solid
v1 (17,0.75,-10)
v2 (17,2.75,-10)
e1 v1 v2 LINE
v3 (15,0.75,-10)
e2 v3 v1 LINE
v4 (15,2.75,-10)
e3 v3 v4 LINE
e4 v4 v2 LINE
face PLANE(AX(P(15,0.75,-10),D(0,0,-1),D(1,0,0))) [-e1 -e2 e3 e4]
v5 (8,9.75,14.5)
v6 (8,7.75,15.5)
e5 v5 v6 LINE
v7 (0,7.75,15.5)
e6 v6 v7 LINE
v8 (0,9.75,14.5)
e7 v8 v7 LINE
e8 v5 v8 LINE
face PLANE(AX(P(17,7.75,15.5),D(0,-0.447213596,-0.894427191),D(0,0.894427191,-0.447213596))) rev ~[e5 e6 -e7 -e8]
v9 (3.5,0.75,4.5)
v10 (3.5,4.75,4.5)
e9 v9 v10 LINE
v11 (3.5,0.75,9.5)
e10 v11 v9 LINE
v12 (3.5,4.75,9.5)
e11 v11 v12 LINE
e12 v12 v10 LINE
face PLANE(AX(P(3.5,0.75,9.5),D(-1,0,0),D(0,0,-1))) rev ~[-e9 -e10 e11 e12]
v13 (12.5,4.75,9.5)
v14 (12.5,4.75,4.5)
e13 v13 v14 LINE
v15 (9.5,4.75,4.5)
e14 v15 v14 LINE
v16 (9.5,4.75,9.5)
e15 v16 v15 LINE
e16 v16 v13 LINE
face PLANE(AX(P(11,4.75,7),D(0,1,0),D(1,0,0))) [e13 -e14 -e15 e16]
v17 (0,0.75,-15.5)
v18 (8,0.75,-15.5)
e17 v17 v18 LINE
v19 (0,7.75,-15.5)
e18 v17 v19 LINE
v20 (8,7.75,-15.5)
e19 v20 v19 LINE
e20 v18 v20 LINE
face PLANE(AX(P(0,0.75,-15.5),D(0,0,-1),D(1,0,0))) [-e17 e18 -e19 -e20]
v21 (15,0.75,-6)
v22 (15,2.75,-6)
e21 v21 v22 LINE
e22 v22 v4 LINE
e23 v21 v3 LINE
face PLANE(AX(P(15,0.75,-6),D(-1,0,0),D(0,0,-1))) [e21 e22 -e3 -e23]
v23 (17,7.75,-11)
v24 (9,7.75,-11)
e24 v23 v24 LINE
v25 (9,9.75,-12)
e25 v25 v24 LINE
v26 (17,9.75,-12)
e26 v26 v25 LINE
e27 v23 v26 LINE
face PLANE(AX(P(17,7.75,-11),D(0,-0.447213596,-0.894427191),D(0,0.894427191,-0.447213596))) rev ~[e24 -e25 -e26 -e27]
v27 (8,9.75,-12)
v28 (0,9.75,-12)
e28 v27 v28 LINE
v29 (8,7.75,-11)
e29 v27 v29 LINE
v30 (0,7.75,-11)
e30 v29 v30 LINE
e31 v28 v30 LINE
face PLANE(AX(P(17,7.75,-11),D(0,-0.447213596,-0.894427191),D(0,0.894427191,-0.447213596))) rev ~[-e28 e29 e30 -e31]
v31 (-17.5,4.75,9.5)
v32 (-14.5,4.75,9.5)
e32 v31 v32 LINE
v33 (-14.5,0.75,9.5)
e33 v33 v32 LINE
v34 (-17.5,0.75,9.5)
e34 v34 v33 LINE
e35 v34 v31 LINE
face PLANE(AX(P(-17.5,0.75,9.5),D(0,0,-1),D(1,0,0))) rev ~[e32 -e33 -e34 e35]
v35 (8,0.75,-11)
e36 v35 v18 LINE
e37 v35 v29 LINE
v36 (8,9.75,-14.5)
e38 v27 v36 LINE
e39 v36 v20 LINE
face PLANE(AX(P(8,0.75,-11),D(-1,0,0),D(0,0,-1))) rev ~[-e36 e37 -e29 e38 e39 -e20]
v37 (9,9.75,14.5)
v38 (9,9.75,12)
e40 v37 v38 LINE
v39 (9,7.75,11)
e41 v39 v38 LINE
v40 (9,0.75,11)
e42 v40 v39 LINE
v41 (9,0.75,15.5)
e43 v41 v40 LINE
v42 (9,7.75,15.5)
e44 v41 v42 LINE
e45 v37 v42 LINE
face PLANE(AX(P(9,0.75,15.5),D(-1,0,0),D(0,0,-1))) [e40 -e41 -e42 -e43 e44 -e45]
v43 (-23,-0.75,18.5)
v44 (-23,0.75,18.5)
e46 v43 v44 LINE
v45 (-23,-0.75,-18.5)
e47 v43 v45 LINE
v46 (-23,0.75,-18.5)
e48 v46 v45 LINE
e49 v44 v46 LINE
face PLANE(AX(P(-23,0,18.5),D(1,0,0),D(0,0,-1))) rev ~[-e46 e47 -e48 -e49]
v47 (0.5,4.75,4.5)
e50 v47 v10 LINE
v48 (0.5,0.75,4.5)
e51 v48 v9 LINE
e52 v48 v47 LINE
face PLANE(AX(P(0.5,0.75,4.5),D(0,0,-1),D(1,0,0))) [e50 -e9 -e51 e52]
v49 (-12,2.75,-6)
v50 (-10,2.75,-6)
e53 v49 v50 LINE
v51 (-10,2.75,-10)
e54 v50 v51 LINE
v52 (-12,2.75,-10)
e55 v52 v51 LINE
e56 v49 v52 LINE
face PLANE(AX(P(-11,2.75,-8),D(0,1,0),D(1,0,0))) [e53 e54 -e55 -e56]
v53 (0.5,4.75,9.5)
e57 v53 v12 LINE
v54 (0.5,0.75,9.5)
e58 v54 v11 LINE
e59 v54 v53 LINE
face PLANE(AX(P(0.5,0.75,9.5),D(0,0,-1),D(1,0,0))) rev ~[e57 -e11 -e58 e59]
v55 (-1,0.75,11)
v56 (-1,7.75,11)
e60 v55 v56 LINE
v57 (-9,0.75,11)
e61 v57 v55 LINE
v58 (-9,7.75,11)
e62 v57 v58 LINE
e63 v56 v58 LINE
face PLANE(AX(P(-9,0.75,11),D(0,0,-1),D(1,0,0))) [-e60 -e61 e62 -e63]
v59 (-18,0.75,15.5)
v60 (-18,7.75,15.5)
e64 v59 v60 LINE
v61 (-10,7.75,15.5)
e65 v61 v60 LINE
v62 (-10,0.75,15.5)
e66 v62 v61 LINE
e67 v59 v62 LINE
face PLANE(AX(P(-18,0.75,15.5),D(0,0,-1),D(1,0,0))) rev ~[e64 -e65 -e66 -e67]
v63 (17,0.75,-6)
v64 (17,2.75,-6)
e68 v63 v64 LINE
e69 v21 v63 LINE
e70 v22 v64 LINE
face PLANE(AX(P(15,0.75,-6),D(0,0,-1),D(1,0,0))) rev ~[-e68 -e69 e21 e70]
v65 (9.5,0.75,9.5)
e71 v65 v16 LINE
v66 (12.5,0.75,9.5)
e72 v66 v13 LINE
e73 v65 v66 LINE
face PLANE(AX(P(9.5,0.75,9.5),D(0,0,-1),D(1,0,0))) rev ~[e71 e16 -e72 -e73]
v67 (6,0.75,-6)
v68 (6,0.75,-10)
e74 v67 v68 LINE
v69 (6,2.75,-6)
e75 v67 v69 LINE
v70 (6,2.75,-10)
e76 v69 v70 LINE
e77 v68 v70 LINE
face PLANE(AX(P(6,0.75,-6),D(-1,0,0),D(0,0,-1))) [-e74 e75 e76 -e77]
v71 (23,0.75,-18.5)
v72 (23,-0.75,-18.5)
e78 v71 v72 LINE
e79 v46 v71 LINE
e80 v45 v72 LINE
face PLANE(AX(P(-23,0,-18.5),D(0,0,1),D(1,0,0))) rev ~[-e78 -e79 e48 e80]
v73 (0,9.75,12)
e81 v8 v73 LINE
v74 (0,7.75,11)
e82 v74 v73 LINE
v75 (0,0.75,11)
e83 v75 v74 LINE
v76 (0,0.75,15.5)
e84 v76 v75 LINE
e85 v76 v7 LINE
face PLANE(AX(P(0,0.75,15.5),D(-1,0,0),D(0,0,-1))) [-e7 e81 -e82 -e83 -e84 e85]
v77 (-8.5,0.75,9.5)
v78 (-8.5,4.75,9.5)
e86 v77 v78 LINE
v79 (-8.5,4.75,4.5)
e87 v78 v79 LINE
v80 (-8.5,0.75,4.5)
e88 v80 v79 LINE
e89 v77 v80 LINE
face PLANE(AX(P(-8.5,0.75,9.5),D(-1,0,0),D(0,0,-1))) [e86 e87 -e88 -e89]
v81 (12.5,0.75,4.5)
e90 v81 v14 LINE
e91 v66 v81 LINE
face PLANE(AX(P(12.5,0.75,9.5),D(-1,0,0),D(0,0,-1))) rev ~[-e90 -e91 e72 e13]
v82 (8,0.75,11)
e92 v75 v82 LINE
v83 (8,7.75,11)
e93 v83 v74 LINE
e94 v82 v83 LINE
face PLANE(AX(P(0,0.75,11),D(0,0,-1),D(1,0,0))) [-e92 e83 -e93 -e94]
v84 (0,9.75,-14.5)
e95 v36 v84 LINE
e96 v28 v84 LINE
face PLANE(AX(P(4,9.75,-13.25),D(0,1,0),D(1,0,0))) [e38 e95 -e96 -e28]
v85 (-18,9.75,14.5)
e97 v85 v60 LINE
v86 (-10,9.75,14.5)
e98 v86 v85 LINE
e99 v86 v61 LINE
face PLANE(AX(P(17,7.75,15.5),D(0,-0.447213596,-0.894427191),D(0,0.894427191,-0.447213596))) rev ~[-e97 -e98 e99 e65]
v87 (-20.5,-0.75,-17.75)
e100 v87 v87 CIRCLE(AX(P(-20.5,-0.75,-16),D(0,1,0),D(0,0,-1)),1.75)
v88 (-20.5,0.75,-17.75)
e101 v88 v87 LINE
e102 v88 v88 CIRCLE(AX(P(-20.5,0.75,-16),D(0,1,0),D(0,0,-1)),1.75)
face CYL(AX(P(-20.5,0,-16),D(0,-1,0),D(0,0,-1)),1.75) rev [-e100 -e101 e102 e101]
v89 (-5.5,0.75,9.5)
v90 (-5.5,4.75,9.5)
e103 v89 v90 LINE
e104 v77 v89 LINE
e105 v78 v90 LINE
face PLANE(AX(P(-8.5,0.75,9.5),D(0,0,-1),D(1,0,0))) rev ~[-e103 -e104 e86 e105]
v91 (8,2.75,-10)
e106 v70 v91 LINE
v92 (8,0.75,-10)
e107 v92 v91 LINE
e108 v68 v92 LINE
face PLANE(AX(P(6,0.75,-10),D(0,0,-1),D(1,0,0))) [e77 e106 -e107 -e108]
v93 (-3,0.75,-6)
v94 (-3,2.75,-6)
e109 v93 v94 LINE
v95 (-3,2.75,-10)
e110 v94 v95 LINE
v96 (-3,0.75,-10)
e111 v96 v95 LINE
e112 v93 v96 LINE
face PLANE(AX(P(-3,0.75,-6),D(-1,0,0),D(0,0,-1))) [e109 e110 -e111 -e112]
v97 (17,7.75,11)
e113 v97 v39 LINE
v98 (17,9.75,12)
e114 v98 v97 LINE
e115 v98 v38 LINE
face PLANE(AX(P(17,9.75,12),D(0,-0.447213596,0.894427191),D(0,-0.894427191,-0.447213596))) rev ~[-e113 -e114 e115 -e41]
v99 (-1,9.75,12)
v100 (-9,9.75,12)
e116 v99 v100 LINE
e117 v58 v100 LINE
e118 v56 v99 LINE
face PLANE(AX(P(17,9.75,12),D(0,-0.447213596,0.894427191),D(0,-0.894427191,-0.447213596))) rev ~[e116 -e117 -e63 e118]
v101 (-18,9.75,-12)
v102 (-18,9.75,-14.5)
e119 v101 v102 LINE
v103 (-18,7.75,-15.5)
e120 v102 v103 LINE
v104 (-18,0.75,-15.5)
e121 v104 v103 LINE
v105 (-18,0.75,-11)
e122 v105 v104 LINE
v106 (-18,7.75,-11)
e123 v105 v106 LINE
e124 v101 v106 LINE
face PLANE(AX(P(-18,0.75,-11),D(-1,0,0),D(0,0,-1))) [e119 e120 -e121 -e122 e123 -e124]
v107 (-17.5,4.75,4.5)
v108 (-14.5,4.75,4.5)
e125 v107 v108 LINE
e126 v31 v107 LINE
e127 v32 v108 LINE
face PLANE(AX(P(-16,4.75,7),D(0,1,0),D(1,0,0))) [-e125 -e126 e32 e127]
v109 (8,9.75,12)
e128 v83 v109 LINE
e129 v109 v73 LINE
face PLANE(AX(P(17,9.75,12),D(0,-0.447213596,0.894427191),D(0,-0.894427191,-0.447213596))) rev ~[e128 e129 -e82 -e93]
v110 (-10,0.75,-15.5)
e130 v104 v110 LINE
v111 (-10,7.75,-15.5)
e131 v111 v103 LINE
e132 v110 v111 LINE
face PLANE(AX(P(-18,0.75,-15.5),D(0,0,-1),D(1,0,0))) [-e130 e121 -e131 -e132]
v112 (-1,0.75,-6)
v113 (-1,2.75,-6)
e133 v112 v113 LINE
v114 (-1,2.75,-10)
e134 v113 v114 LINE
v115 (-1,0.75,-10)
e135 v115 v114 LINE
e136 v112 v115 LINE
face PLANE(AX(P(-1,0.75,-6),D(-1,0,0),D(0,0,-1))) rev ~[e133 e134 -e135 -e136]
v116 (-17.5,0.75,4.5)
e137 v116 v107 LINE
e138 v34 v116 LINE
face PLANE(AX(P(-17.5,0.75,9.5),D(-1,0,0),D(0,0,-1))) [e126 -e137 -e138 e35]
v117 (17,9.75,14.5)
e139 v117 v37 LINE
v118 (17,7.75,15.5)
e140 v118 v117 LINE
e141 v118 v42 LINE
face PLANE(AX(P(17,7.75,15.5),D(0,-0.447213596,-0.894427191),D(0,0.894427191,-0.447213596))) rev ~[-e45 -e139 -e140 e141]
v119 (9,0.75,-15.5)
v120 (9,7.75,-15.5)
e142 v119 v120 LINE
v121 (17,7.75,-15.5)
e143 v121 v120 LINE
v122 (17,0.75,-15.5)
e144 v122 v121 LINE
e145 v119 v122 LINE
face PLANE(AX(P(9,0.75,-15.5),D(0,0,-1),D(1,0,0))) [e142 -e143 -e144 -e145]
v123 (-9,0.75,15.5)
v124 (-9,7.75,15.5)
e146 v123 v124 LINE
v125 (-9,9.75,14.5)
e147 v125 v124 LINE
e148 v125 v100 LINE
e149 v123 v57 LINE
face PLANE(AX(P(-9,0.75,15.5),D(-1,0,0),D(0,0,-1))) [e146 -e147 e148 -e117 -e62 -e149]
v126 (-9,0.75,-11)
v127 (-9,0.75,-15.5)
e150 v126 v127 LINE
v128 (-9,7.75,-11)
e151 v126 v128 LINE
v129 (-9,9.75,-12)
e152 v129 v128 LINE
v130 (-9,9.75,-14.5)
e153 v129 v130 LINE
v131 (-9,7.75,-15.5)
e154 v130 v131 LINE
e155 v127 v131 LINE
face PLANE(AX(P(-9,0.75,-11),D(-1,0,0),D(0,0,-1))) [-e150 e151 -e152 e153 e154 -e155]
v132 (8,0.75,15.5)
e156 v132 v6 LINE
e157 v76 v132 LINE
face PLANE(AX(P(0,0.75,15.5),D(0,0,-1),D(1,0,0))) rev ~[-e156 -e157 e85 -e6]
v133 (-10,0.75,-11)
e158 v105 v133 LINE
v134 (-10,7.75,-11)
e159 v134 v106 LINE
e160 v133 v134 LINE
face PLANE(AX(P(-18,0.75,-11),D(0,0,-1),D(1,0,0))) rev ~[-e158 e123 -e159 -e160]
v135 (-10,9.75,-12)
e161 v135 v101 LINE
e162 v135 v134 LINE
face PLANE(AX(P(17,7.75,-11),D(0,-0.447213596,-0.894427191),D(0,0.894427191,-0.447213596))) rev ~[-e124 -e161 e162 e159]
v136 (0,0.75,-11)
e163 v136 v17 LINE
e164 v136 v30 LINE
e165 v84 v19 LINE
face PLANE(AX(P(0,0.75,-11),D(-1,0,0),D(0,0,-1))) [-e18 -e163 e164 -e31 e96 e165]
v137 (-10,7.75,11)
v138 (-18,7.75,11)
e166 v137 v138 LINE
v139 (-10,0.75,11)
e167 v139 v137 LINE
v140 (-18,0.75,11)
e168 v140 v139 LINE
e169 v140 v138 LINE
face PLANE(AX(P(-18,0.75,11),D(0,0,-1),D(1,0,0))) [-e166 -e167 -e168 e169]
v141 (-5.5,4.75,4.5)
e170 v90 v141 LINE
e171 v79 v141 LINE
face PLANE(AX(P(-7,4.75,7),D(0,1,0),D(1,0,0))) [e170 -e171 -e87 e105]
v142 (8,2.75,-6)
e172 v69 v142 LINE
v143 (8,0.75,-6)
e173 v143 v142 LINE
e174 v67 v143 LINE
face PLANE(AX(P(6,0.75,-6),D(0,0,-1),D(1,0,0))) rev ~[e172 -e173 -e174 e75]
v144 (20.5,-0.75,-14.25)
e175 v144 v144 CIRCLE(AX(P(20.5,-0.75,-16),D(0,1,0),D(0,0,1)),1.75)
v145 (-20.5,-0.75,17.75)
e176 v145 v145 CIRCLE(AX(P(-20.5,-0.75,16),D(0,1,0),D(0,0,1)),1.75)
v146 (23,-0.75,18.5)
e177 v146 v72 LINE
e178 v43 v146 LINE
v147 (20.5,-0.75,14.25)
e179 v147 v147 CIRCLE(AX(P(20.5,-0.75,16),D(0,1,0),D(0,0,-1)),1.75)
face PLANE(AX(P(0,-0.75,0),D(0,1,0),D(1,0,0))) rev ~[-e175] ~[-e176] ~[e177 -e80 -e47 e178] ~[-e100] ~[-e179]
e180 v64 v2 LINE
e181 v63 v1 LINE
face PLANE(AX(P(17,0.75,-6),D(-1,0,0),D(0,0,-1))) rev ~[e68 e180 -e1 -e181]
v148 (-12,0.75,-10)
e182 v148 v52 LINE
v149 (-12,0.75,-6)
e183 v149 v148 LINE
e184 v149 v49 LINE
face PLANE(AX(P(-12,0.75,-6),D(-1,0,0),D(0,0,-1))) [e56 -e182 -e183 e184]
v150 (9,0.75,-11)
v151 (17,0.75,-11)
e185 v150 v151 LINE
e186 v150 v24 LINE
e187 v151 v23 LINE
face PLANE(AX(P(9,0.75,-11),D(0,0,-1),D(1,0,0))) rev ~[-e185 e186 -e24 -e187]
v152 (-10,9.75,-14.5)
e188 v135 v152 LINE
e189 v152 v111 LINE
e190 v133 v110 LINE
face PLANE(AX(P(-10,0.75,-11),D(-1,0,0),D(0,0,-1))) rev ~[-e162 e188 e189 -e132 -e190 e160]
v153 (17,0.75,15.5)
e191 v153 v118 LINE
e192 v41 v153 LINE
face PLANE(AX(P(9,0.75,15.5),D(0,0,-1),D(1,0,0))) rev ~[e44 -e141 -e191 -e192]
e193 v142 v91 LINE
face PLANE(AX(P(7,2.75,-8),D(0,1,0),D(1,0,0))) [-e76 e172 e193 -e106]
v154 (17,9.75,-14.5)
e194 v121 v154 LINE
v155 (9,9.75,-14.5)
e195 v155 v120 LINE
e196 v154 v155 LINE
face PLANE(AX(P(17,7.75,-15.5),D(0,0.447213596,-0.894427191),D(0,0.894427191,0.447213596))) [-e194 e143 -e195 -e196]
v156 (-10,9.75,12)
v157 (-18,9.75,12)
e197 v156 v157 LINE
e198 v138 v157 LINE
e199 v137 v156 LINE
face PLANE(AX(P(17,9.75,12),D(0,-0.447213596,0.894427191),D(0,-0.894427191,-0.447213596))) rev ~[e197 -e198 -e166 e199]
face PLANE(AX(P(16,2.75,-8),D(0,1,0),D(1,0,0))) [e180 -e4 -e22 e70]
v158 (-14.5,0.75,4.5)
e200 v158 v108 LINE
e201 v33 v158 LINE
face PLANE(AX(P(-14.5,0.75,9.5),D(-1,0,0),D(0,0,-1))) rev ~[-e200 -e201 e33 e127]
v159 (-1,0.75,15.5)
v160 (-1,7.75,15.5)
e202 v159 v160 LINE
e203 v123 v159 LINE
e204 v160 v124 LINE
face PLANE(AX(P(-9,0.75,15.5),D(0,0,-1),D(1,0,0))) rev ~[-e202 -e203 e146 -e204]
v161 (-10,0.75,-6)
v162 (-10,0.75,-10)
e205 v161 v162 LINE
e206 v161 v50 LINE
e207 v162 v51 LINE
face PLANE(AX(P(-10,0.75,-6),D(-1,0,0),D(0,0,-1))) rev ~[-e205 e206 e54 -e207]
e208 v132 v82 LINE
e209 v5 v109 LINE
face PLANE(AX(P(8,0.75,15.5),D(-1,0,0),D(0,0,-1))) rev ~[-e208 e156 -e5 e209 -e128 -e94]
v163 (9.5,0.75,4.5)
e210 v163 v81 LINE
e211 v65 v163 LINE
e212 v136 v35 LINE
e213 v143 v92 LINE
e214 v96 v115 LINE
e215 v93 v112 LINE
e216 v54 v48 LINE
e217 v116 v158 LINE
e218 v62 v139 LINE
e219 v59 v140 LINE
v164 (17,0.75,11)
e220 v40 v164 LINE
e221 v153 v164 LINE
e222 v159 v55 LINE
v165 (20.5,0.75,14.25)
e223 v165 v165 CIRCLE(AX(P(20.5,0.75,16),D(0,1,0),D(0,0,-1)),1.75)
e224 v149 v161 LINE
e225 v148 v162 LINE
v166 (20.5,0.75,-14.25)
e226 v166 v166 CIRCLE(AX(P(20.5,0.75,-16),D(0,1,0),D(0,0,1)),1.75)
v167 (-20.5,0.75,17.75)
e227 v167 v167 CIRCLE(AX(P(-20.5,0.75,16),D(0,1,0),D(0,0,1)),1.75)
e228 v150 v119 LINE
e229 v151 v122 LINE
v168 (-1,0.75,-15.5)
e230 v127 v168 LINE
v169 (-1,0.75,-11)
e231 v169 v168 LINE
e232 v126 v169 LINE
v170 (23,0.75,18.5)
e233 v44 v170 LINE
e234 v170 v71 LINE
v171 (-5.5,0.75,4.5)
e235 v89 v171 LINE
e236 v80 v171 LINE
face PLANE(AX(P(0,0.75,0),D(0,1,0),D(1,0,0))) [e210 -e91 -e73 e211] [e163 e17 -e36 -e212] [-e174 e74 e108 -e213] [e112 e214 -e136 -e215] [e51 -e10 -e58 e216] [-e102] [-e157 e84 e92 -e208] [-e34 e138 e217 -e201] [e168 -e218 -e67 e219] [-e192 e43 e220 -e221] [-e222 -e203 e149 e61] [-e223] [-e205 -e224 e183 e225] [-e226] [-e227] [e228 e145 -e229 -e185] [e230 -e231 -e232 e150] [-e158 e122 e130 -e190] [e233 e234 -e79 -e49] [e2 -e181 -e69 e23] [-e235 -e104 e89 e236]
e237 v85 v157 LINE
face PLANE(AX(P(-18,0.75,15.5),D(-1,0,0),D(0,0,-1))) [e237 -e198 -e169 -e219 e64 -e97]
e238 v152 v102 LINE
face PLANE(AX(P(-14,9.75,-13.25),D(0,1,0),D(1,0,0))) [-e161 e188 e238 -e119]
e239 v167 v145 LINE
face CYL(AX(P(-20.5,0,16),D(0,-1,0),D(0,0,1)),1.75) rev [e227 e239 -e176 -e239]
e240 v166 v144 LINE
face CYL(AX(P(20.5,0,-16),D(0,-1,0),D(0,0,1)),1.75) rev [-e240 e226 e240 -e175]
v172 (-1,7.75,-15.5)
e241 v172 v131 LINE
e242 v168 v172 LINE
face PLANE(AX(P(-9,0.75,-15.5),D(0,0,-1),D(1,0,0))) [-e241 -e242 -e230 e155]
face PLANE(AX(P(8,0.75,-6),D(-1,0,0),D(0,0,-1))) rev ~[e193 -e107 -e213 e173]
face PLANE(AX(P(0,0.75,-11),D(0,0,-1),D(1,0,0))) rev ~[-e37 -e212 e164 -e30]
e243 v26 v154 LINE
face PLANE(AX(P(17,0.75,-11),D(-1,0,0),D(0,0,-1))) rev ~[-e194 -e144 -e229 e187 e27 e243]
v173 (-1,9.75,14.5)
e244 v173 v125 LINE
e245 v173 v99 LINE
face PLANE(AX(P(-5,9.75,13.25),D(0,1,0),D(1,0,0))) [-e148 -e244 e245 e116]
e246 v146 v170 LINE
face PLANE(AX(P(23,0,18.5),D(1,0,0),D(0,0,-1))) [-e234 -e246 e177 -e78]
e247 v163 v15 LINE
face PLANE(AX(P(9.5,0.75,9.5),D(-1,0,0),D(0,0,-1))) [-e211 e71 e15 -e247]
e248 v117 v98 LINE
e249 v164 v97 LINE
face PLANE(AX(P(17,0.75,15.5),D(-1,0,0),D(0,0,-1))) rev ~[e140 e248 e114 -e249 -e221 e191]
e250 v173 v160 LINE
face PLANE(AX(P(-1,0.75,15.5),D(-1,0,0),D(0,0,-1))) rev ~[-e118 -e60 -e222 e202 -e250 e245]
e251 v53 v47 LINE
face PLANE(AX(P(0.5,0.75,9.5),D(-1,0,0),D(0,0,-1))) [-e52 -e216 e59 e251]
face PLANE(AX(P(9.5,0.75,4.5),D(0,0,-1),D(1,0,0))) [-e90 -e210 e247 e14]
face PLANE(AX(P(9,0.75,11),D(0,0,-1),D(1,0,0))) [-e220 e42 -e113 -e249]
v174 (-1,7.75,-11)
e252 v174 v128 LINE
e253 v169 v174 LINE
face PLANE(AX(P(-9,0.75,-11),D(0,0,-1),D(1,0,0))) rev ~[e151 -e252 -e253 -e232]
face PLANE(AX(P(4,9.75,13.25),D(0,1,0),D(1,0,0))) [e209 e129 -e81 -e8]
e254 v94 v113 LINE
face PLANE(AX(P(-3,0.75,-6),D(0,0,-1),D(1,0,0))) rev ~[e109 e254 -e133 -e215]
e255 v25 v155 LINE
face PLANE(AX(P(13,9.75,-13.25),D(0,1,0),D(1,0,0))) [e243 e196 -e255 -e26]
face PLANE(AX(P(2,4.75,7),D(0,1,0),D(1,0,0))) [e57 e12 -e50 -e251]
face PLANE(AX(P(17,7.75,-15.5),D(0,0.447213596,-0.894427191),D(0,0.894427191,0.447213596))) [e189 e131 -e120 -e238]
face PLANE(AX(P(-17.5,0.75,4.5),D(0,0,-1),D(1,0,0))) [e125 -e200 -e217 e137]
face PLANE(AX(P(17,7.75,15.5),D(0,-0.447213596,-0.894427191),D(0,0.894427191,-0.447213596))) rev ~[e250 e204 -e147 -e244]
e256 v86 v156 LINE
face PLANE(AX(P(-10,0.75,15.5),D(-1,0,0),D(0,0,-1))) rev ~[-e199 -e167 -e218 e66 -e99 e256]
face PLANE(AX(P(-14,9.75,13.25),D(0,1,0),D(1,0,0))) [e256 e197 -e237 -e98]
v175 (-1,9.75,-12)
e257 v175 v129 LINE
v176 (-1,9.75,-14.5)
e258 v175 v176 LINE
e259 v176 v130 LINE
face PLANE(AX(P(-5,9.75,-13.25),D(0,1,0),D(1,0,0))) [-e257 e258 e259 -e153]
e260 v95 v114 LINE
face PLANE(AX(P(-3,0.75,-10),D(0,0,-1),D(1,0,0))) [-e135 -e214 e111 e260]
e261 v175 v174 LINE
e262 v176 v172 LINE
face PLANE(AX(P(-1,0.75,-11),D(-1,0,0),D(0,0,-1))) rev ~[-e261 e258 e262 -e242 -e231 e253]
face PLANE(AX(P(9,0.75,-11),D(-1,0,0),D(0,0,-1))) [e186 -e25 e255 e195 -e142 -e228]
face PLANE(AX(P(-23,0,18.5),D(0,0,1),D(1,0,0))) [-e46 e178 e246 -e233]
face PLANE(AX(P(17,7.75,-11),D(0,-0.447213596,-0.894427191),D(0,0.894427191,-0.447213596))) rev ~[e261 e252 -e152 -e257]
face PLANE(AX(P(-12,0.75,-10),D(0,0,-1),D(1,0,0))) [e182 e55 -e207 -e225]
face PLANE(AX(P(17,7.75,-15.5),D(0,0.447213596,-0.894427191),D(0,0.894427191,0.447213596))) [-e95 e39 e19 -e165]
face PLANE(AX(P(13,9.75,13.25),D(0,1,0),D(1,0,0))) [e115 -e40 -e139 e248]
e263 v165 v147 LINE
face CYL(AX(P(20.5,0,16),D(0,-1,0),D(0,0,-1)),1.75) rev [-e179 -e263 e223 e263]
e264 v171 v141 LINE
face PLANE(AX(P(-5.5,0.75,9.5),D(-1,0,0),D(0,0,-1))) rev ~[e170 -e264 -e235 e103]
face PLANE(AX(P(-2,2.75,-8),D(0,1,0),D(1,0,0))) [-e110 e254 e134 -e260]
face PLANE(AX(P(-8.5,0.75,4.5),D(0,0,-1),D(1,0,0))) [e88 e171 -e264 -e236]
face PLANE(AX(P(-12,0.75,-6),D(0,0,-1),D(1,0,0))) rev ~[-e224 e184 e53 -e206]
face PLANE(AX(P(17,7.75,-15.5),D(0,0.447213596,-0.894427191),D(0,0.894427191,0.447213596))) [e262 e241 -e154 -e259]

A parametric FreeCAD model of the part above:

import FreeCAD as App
import Part
import Sketcher

V = App.Vector

doc = App.newDocument("Part")
params = doc.addObject("Spreadsheet::Sheet", "Params")
for row, (alias, value) in enumerate([
    ("sketch1_diameter", "3.5 mm"),
    ("sketch1_width", "46 mm"),
    ("sketch1_height", "37 mm"),
    ("pad1_length", "1.5 mm"),
    ("sketch2_width", "8 mm"),
    ("sketch2_height", "4.5 mm"),
    ("pad2_length", "9 mm"),
    ("sketch3_width", "2 mm"),
    ("sketch3_height", "1 mm"),
    ("pocket1_length", "124 mm"),
    ("sketch4_width", "2 mm"),
    ("sketch4_height", "4 mm"),
    ("pad3_length", "2 mm"),
    ("sketch5_width", "3 mm"),
    ("sketch5_height", "5 mm"),
    ("pad4_length", "4 mm"),
], start=1):
    params.set(f"A{row}", alias)
    params.set(f"B{row}", "=" + value)
    params.setAlias(f"B{row}", alias)

body = doc.addObject("PartDesign::Body", "Body")

# Sketch on XZ plane
sketch1 = body.newObject("Sketcher::SketchObject", "Sketch")
sketch1.AttachmentSupport = (doc.getObject("XZ_Plane"), [""])
sketch1.MapMode = "FlatFace"
sketch1.addGeometry(Part.LineSegment(V(-23, -18.5, 0), V(-23, 18.5, 0)), False)
sketch1.addGeometry(Part.LineSegment(V(-23, 18.5, 0), V(23, 18.5, 0)), False)
sketch1.addGeometry(Part.LineSegment(V(23, 18.5, 0), V(23, -18.5, 0)), False)
sketch1.addGeometry(Part.LineSegment(V(23, -18.5, 0), V(-23, -18.5, 0)), False)
sketch1.addGeometry(Part.Circle(V(-20.5, 16, 0), V(0, 0, 1), 1.75), False)
sketch1.addGeometry(Part.Circle(V(20.5, 16, 0), V(0, 0, 1), 1.75), False)
sketch1.addGeometry(Part.Circle(V(-20.5, -16, 0), V(0, 0, 1), 1.75), False)
sketch1.addGeometry(Part.Circle(V(20.5, -16, 0), V(0, 0, 1), 1.75), False)
sketch1.addConstraint(Sketcher.Constraint("Coincident", 0, 2, 1, 1))
sketch1.addConstraint(Sketcher.Constraint("Coincident", 1, 2, 2, 1))
sketch1.addConstraint(Sketcher.Constraint("Coincident", 2, 2, 3, 1))
sketch1.addConstraint(Sketcher.Constraint("Coincident", 3, 2, 0, 1))
sketch1.addConstraint(Sketcher.Constraint("Vertical", 0))
sketch1.addConstraint(Sketcher.Constraint("Horizontal", 1))
sketch1.addConstraint(Sketcher.Constraint("Vertical", 2))
sketch1.addConstraint(Sketcher.Constraint("Horizontal", 3))
sketch1.addConstraint(Sketcher.Constraint("Equal", 4, 5))
sketch1.addConstraint(Sketcher.Constraint("Equal", 5, 6))
sketch1.addConstraint(Sketcher.Constraint("Equal", 6, 7))
sketch1.addConstraint(Sketcher.Constraint("Symmetric", 5, 3, 6, 3, -1, 1))
sketch1.addConstraint(Sketcher.Constraint("Symmetric", 4, 3, 7, 3, -1, 1))
sketch1.addConstraint(Sketcher.Constraint("Symmetric", 0, 2, 2, 2, -1, 1))
sketch1.addConstraint(Sketcher.Constraint("Symmetric", 4, 3, 5, 3, -2))
sketch1.addConstraint(Sketcher.Constraint("Diameter", 4, 3.5))
sketch1.addConstraint(Sketcher.Constraint("DistanceX", 1, 1, 1, 2, 46.0))
sketch1.addConstraint(Sketcher.Constraint("DistanceY", 0, 1, 0, 2, 37.0))
sketch1.addConstraint(Sketcher.Constraint("DistanceY", -1, 1, 4, 3, 16.0))
sketch1.addConstraint(Sketcher.Constraint("DistanceX", 4, 3, 5, 3, 41.0))
sketch1.setExpression("Constraints[15]", "Params.sketch1_diameter")
sketch1.setExpression("Constraints[16]", "Params.sketch1_width")
sketch1.setExpression("Constraints[17]", "Params.sketch1_height")
pad1 = body.newObject("PartDesign::Pad", "Pad")
pad1.Profile = sketch1
pad1.setExpression("Length", "Params.pad1_length")
pad1.Midplane = True

# Sketch on XZ plane
sketch2 = body.newObject("Sketcher::SketchObject", "Sketch001")
sketch2.AttachmentSupport = (doc.getObject("XZ_Plane"), [""])
sketch2.MapMode = "FlatFace"
sketch2.AttachmentOffset = App.Placement(V(0, 0, -0.75), App.Rotation())
sketch2.addGeometry(Part.LineSegment(V(9, -15.5, 0), V(9, -11, 0)), False)
sketch2.addGeometry(Part.LineSegment(V(9, -11, 0), V(17, -11, 0)), False)
sketch2.addGeometry(Part.LineSegment(V(17, -11, 0), V(17, -15.5, 0)), False)
sketch2.addGeometry(Part.LineSegment(V(17, -15.5, 0), V(9, -15.5, 0)), False)
sketch2.addGeometry(Part.LineSegment(V(0, -15.5, 0), V(0, -11, 0)), False)
sketch2.addGeometry(Part.LineSegment(V(0, -11, 0), V(8, -11, 0)), False)
sketch2.addGeometry(Part.LineSegment(V(8, -11, 0), V(8, -15.5, 0)), False)
sketch2.addGeometry(Part.LineSegment(V(8, -15.5, 0), V(0, -15.5, 0)), False)
sketch2.addGeometry(Part.LineSegment(V(-9, -15.5, 0), V(-9, -11, 0)), False)
sketch2.addGeometry(Part.LineSegment(V(-9, -11, 0), V(-1, -11, 0)), False)
sketch2.addGeometry(Part.LineSegment(V(-1, -11, 0), V(-1, -15.5, 0)), False)
sketch2.addGeometry(Part.LineSegment(V(-1, -15.5, 0), V(-9, -15.5, 0)), False)
sketch2.addGeometry(Part.LineSegment(V(-18, -15.5, 0), V(-18, -11, 0)), False)
sketch2.addGeometry(Part.LineSegment(V(-18, -11, 0), V(-10, -11, 0)), False)
sketch2.addGeometry(Part.LineSegment(V(-10, -11, 0), V(-10, -15.5, 0)), False)
sketch2.addGeometry(Part.LineSegment(V(-10, -15.5, 0), V(-18, -15.5, 0)), False)
sketch2.addGeometry(Part.LineSegment(V(-18, 11, 0), V(-18, 15.5, 0)), False)
sketch2.addGeometry(Part.LineSegment(V(-18, 15.5, 0), V(-10, 15.5, 0)), False)
sketch2.addGeometry(Part.LineSegment(V(-10, 15.5, 0), V(-10, 11, 0)), False)
sketch2.addGeometry(Part.LineSegment(V(-10, 11, 0), V(-18, 11, 0)), False)
sketch2.addGeometry(Part.LineSegment(V(-9, 11, 0), V(-9, 15.5, 0)), False)
sketch2.addGeometry(Part.LineSegment(V(-9, 15.5, 0), V(-1, 15.5, 0)), False)
sketch2.addGeometry(Part.LineSegment(V(-1, 15.5, 0), V(-1, 11, 0)), False)
sketch2.addGeometry(Part.LineSegment(V(-1, 11, 0), V(-9, 11, 0)), False)
sketch2.addGeometry(Part.LineSegment(V(0, 11, 0), V(0, 15.5, 0)), False)
sketch2.addGeometry(Part.LineSegment(V(0, 15.5, 0), V(8, 15.5, 0)), False)
sketch2.addGeometry(Part.LineSegment(V(8, 15.5, 0), V(8, 11, 0)), False)
sketch2.addGeometry(Part.LineSegment(V(8, 11, 0), V(0, 11, 0)), False)
sketch2.addGeometry(Part.LineSegment(V(9, 11, 0), V(9, 15.5, 0)), False)
sketch2.addGeometry(Part.LineSegment(V(9, 15.5, 0), V(17, 15.5, 0)), False)
sketch2.addGeometry(Part.LineSegment(V(17, 15.5, 0), V(17, 11, 0)), False)
sketch2.addGeometry(Part.LineSegment(V(17, 11, 0), V(9, 11, 0)), False)
sketch2.addConstraint(Sketcher.Constraint("Coincident", 0, 2, 1, 1))
sketch2.addConstraint(Sketcher.Constraint("Coincident", 1, 2, 2, 1))
sketch2.addConstraint(Sketcher.Constraint("Coincident", 2, 2, 3, 1))
sketch2.addConstraint(Sketcher.Constraint("Coincident", 3, 2, 0, 1))
sketch2.addConstraint(Sketcher.Constraint("Coincident", 4, 2, 5, 1))
sketch2.addConstraint(Sketcher.Constraint("Coincident", 5, 2, 6, 1))
sketch2.addConstraint(Sketcher.Constraint("Coincident", 6, 2, 7, 1))
sketch2.addConstraint(Sketcher.Constraint("Coincident", 7, 2, 4, 1))
sketch2.addConstraint(Sketcher.Constraint("Coincident", 8, 2, 9, 1))
sketch2.addConstraint(Sketcher.Constraint("Coincident", 9, 2, 10, 1))
sketch2.addConstraint(Sketcher.Constraint("Coincident", 10, 2, 11, 1))
sketch2.addConstraint(Sketcher.Constraint("Coincident", 11, 2, 8, 1))
sketch2.addConstraint(Sketcher.Constraint("Coincident", 12, 2, 13, 1))
sketch2.addConstraint(Sketcher.Constraint("Coincident", 13, 2, 14, 1))
sketch2.addConstraint(Sketcher.Constraint("Coincident", 14, 2, 15, 1))
sketch2.addConstraint(Sketcher.Constraint("Coincident", 15, 2, 12, 1))
sketch2.addConstraint(Sketcher.Constraint("Coincident", 16, 2, 17, 1))
sketch2.addConstraint(Sketcher.Constraint("Coincident", 17, 2, 18, 1))
sketch2.addConstraint(Sketcher.Constraint("Coincident", 18, 2, 19, 1))
sketch2.addConstraint(Sketcher.Constraint("Coincident", 19, 2, 16, 1))
sketch2.addConstraint(Sketcher.Constraint("Coincident", 20, 2, 21, 1))
sketch2.addConstraint(Sketcher.Constraint("Coincident", 21, 2, 22, 1))
sketch2.addConstraint(Sketcher.Constraint("Coincident", 22, 2, 23, 1))
sketch2.addConstraint(Sketcher.Constraint("Coincident", 23, 2, 20, 1))
sketch2.addConstraint(Sketcher.Constraint("Coincident", 24, 2, 25, 1))
sketch2.addConstraint(Sketcher.Constraint("Coincident", 25, 2, 26, 1))
sketch2.addConstraint(Sketcher.Constraint("Coincident", 26, 2, 27, 1))
sketch2.addConstraint(Sketcher.Constraint("Coincident", 27, 2, 24, 1))
sketch2.addConstraint(Sketcher.Constraint("Coincident", 28, 2, 29, 1))
sketch2.addConstraint(Sketcher.Constraint("Coincident", 29, 2, 30, 1))
sketch2.addConstraint(Sketcher.Constraint("Coincident", 30, 2, 31, 1))
sketch2.addConstraint(Sketcher.Constraint("Coincident", 31, 2, 28, 1))
sketch2.addConstraint(Sketcher.Constraint("Vertical", 0))
sketch2.addConstraint(Sketcher.Constraint("Horizontal", 1))
sketch2.addConstraint(Sketcher.Constraint("Vertical", 2))
sketch2.addConstraint(Sketcher.Constraint("Horizontal", 3))
sketch2.addConstraint(Sketcher.Constraint("Vertical", 4))
sketch2.addConstraint(Sketcher.Constraint("Horizontal", 5))
sketch2.addConstraint(Sketcher.Constraint("Vertical", 6))
sketch2.addConstraint(Sketcher.Constraint("Horizontal", 7))
sketch2.addConstraint(Sketcher.Constraint("Vertical", 8))
sketch2.addConstraint(Sketcher.Constraint("Horizontal", 9))
sketch2.addConstraint(Sketcher.Constraint("Vertical", 10))
sketch2.addConstraint(Sketcher.Constraint("Horizontal", 11))
sketch2.addConstraint(Sketcher.Constraint("Vertical", 12))
sketch2.addConstraint(Sketcher.Constraint("Horizontal", 13))
sketch2.addConstraint(Sketcher.Constraint("Vertical", 14))
sketch2.addConstraint(Sketcher.Constraint("Horizontal", 15))
sketch2.addConstraint(Sketcher.Constraint("Vertical", 16))
sketch2.addConstraint(Sketcher.Constraint("Horizontal", 17))
sketch2.addConstraint(Sketcher.Constraint("Vertical", 18))
sketch2.addConstraint(Sketcher.Constraint("Horizontal", 19))
sketch2.addConstraint(Sketcher.Constraint("Vertical", 20))
sketch2.addConstraint(Sketcher.Constraint("Horizontal", 21))
sketch2.addConstraint(Sketcher.Constraint("Vertical", 22))
sketch2.addConstraint(Sketcher.Constraint("Horizontal", 23))
sketch2.addConstraint(Sketcher.Constraint("Vertical", 24))
sketch2.addConstraint(Sketcher.Constraint("Horizontal", 25))
sketch2.addConstraint(Sketcher.Constraint("Vertical", 26))
sketch2.addConstraint(Sketcher.Constraint("Horizontal", 27))
sketch2.addConstraint(Sketcher.Constraint("Vertical", 28))
sketch2.addConstraint(Sketcher.Constraint("Horizontal", 29))
sketch2.addConstraint(Sketcher.Constraint("Vertical", 30))
sketch2.addConstraint(Sketcher.Constraint("Horizontal", 31))
sketch2.addConstraint(Sketcher.Constraint("Symmetric", 3, 2, 20, 2, -1, 1))
sketch2.addConstraint(Sketcher.Constraint("Symmetric", 7, 2, 24, 2, -1, 1))
sketch2.addConstraint(Sketcher.Constraint("Symmetric", 11, 2, 28, 2, -1, 1))
sketch2.addConstraint(Sketcher.Constraint("Symmetric", 0, 2, 8, 2, -2))
sketch2.addConstraint(Sketcher.Constraint("Symmetric", 15, 2, 16, 2, -1))
sketch2.addConstraint(Sketcher.Constraint("Symmetric", 13, 2, 18, 2, -1))
sketch2.addConstraint(Sketcher.Constraint("Symmetric", 10, 2, 21, 2, -1))
sketch2.addConstraint(Sketcher.Constraint("Symmetric", 5, 2, 26, 2, -1))
sketch2.addConstraint(Sketcher.Constraint("Symmetric", 1, 2, 30, 2, -1))
sketch2.addConstraint(Sketcher.Constraint("PointOnObject", 4, 2, -2))
sketch2.addConstraint(Sketcher.Constraint("Horizontal", 1, 2, 4, 2))
sketch2.addConstraint(Sketcher.Constraint("Horizontal", 3, 2, 6, 2))
sketch2.addConstraint(Sketcher.Constraint("Horizontal", 9, 2, 12, 2))
sketch2.addConstraint(Sketcher.Constraint("Horizontal", 11, 2, 14, 2))
sketch2.addConstraint(Sketcher.Constraint("Horizontal", 19, 2, 22, 2))
sketch2.addConstraint(Sketcher.Constraint("Equal", 3, 5))
sketch2.addConstraint(Sketcher.Constraint("Equal", 7, 9))
sketch2.addConstraint(Sketcher.Constraint("Equal", 11, 13))
sketch2.addConstraint(Sketcher.Constraint("DistanceX", 1, 1, 1, 2, 8.0))
sketch2.addConstraint(Sketcher.Constraint("DistanceY", 0, 1, 0, 2, 4.5))
sketch2.addConstraint(Sketcher.Constraint("DistanceX", -1, 1, 0, 2, 9.0))
sketch2.addConstraint(Sketcher.Constraint("DistanceY", 0, 2, -1, 1, 11.0))
sketch2.addConstraint(Sketcher.Constraint("DistanceX", 12, 2, -1, 1, 18.0))
sketch2.setExpression("Constraints[82]", "Params.sketch2_width")
sketch2.setExpression("Constraints[83]", "Params.sketch2_height")
pad2 = body.newObject("PartDesign::Pad", "Pad001")
pad2.Profile = sketch2
pad2.setExpression("Length", "Params.pad2_length")
pad2.Reversed = True

# Sketch on YZ plane
sketch3 = body.newObject("Sketcher::SketchObject", "Sketch002")
sketch3.AttachmentSupport = (doc.getObject("YZ_Plane"), [""])
sketch3.MapMode = "FlatFace"
sketch3.AttachmentOffset = App.Placement(V(0, 0, 17), App.Rotation())
sketch3.addGeometry(Part.LineSegment(V(9.75, 15.5, 0), V(7.75, 15.5, 0)), False)
sketch3.addGeometry(Part.LineSegment(V(7.75, 15.5, 0), V(9.75, 14.5, 0)), False)
sketch3.addGeometry(Part.LineSegment(V(9.75, 14.5, 0), V(9.75, 15.5, 0)), False)
sketch3.addGeometry(Part.LineSegment(V(9.75, 11, 0), V(9.75, 12, 0)), False)
sketch3.addGeometry(Part.LineSegment(V(9.75, 12, 0), V(7.75, 11, 0)), False)
sketch3.addGeometry(Part.LineSegment(V(7.75, 11, 0), V(9.75, 11, 0)), False)
sketch3.addGeometry(Part.LineSegment(V(9.75, -12, 0), V(9.75, -11, 0)), False)
sketch3.addGeometry(Part.LineSegment(V(9.75, -11, 0), V(7.75, -11, 0)), False)
sketch3.addGeometry(Part.LineSegment(V(7.75, -11, 0), V(9.75, -12, 0)), False)
sketch3.addGeometry(Part.LineSegment(V(9.75, -14.5, 0), V(7.75, -15.5, 0)), False)
sketch3.addGeometry(Part.LineSegment(V(7.75, -15.5, 0), V(9.75, -15.5, 0)), False)
sketch3.addGeometry(Part.LineSegment(V(9.75, -15.5, 0), V(9.75, -14.5, 0)), False)
sketch3.addConstraint(Sketcher.Constraint("Coincident", 0, 2, 1, 1))
sketch3.addConstraint(Sketcher.Constraint("Coincident", 1, 2, 2, 1))
sketch3.addConstraint(Sketcher.Constraint("Coincident", 2, 2, 0, 1))
sketch3.addConstraint(Sketcher.Constraint("Coincident", 3, 2, 4, 1))
sketch3.addConstraint(Sketcher.Constraint("Coincident", 4, 2, 5, 1))
sketch3.addConstraint(Sketcher.Constraint("Coincident", 5, 2, 3, 1))
sketch3.addConstraint(Sketcher.Constraint("Coincident", 6, 2, 7, 1))
sketch3.addConstraint(Sketcher.Constraint("Coincident", 7, 2, 8, 1))
sketch3.addConstraint(Sketcher.Constraint("Coincident", 8, 2, 6, 1))
sketch3.addConstraint(Sketcher.Constraint("Coincident", 9, 2, 10, 1))
sketch3.addConstraint(Sketcher.Constraint("Coincident", 10, 2, 11, 1))
sketch3.addConstraint(Sketcher.Constraint("Coincident", 11, 2, 9, 1))
sketch3.addConstraint(Sketcher.Constraint("Horizontal", 0))
sketch3.addConstraint(Sketcher.Constraint("Vertical", 2))
sketch3.addConstraint(Sketcher.Constraint("Vertical", 3))
sketch3.addConstraint(Sketcher.Constraint("Horizontal", 5))
sketch3.addConstraint(Sketcher.Constraint("Vertical", 6))
sketch3.addConstraint(Sketcher.Constraint("Horizontal", 7))
sketch3.addConstraint(Sketcher.Constraint("Horizontal", 10))
sketch3.addConstraint(Sketcher.Constraint("Vertical", 11))
sketch3.addConstraint(Sketcher.Constraint("Symmetric", 5, 2, 6, 2, -1))
sketch3.addConstraint(Sketcher.Constraint("Symmetric", 0, 2, 9, 2, -1))
sketch3.addConstraint(Sketcher.Constraint("Symmetric", 1, 2, 11, 2, -1))
sketch3.addConstraint(Sketcher.Constraint("Parallel", 1, 8))
sketch3.addConstraint(Sketcher.Constraint("Parallel", 4, 9))
sketch3.addConstraint(Sketcher.Constraint("Vertical", 2, 2, 3, 2))
sketch3.addConstraint(Sketcher.Constraint("Vertical", 0, 2, 4, 2))
sketch3.addConstraint(Sketcher.Constraint("Vertical", 4, 2, 7, 2))
sketch3.addConstraint(Sketcher.Constraint("DistanceX", 0, 2, 0, 1, 2.0))
sketch3.addConstraint(Sketcher.Constraint("DistanceY", 2, 1, 2, 2, 1.0))
sketch3.addConstraint(Sketcher.Constraint("DistanceY", -1, 1, 3, 2, 12.0))
sketch3.addConstraint(Sketcher.Constraint("DistanceY", -1, 1, 0, 2, 15.5))
sketch3.addConstraint(Sketcher.Constraint("DistanceX", -1, 1, 0, 2, 7.75))
sketch3.setExpression("Constraints[28]", "Params.sketch3_width")
sketch3.setExpression("Constraints[29]", "Params.sketch3_height")
pocket1 = body.newObject("PartDesign::Pocket", "Pocket")
pocket1.Profile = sketch3
pocket1.setExpression("Length", "Params.pocket1_length")

# Sketch on XZ plane
sketch4 = body.newObject("Sketcher::SketchObject", "Sketch003")
sketch4.AttachmentSupport = (doc.getObject("XZ_Plane"), [""])
sketch4.MapMode = "FlatFace"
sketch4.AttachmentOffset = App.Placement(V(0, 0, -0.75), App.Rotation())
sketch4.addGeometry(Part.LineSegment(V(15, -10, 0), V(15, -6, 0)), False)
sketch4.addGeometry(Part.LineSegment(V(15, -6, 0), V(17, -6, 0)), False)
sketch4.addGeometry(Part.LineSegment(V(17, -6, 0), V(17, -10, 0)), False)
sketch4.addGeometry(Part.LineSegment(V(17, -10, 0), V(15, -10, 0)), False)
sketch4.addGeometry(Part.LineSegment(V(6, -10, 0), V(6, -6, 0)), False)
sketch4.addGeometry(Part.LineSegment(V(6, -6, 0), V(8, -6, 0)), False)
sketch4.addGeometry(Part.LineSegment(V(8, -6, 0), V(8, -10, 0)), False)
sketch4.addGeometry(Part.LineSegment(V(8, -10, 0), V(6, -10, 0)), False)
sketch4.addGeometry(Part.LineSegment(V(-3, -10, 0), V(-3, -6, 0)), False)
sketch4.addGeometry(Part.LineSegment(V(-3, -6, 0), V(-1, -6, 0)), False)
sketch4.addGeometry(Part.LineSegment(V(-1, -6, 0), V(-1, -10, 0)), False)
sketch4.addGeometry(Part.LineSegment(V(-1, -10, 0), V(-3, -10, 0)), False)
sketch4.addGeometry(Part.LineSegment(V(-12, -10, 0), V(-12, -6, 0)), False)
sketch4.addGeometry(Part.LineSegment(V(-12, -6, 0), V(-10, -6, 0)), False)
sketch4.addGeometry(Part.LineSegment(V(-10, -6, 0), V(-10, -10, 0)), False)
sketch4.addGeometry(Part.LineSegment(V(-10, -10, 0), V(-12, -10, 0)), False)
sketch4.addConstraint(Sketcher.Constraint("Coincident", 0, 2, 1, 1))
sketch4.addConstraint(Sketcher.Constraint("Coincident", 1, 2, 2, 1))
sketch4.addConstraint(Sketcher.Constraint("Coincident", 2, 2, 3, 1))
sketch4.addConstraint(Sketcher.Constraint("Coincident", 3, 2, 0, 1))
sketch4.addConstraint(Sketcher.Constraint("Coincident", 4, 2, 5, 1))
sketch4.addConstraint(Sketcher.Constraint("Coincident", 5, 2, 6, 1))
sketch4.addConstraint(Sketcher.Constraint("Coincident", 6, 2, 7, 1))
sketch4.addConstraint(Sketcher.Constraint("Coincident", 7, 2, 4, 1))
sketch4.addConstraint(Sketcher.Constraint("Coincident", 8, 2, 9, 1))
sketch4.addConstraint(Sketcher.Constraint("Coincident", 9, 2, 10, 1))
sketch4.addConstraint(Sketcher.Constraint("Coincident", 10, 2, 11, 1))
sketch4.addConstraint(Sketcher.Constraint("Coincident", 11, 2, 8, 1))
sketch4.addConstraint(Sketcher.Constraint("Coincident", 12, 2, 13, 1))
sketch4.addConstraint(Sketcher.Constraint("Coincident", 13, 2, 14, 1))
sketch4.addConstraint(Sketcher.Constraint("Coincident", 14, 2, 15, 1))
sketch4.addConstraint(Sketcher.Constraint("Coincident", 15, 2, 12, 1))
sketch4.addConstraint(Sketcher.Constraint("Vertical", 0))
sketch4.addConstraint(Sketcher.Constraint("Horizontal", 1))
sketch4.addConstraint(Sketcher.Constraint("Vertical", 2))
sketch4.addConstraint(Sketcher.Constraint("Horizontal", 3))
sketch4.addConstraint(Sketcher.Constraint("Vertical", 4))
sketch4.addConstraint(Sketcher.Constraint("Horizontal", 5))
sketch4.addConstraint(Sketcher.Constraint("Vertical", 6))
sketch4.addConstraint(Sketcher.Constraint("Horizontal", 7))
sketch4.addConstraint(Sketcher.Constraint("Vertical", 8))
sketch4.addConstraint(Sketcher.Constraint("Horizontal", 9))
sketch4.addConstraint(Sketcher.Constraint("Vertical", 10))
sketch4.addConstraint(Sketcher.Constraint("Horizontal", 11))
sketch4.addConstraint(Sketcher.Constraint("Vertical", 12))
sketch4.addConstraint(Sketcher.Constraint("Horizontal", 13))
sketch4.addConstraint(Sketcher.Constraint("Vertical", 14))
sketch4.addConstraint(Sketcher.Constraint("Horizontal", 15))
sketch4.addConstraint(Sketcher.Constraint("Horizontal", 1, 2, 4, 2))
sketch4.addConstraint(Sketcher.Constraint("Horizontal", 3, 2, 6, 2))
sketch4.addConstraint(Sketcher.Constraint("Horizontal", 5, 2, 8, 2))
sketch4.addConstraint(Sketcher.Constraint("Horizontal", 7, 2, 10, 2))
sketch4.addConstraint(Sketcher.Constraint("Horizontal", 9, 2, 12, 2))
sketch4.addConstraint(Sketcher.Constraint("Horizontal", 11, 2, 14, 2))
sketch4.addConstraint(Sketcher.Constraint("Equal", 3, 5))
sketch4.addConstraint(Sketcher.Constraint("Equal", 7, 9))
sketch4.addConstraint(Sketcher.Constraint("Equal", 11, 13))
sketch4.addConstraint(Sketcher.Constraint("DistanceX", 1, 1, 1, 2, 2.0))
sketch4.addConstraint(Sketcher.Constraint("DistanceY", 0, 1, 0, 2, 4.0))
sketch4.addConstraint(Sketcher.Constraint("DistanceX", -1, 1, 0, 2, 15.0))
sketch4.addConstraint(Sketcher.Constraint("DistanceY", 0, 2, -1, 1, 6.0))
sketch4.addConstraint(Sketcher.Constraint("DistanceX", -1, 1, 4, 2, 6.0))
sketch4.addConstraint(Sketcher.Constraint("DistanceX", 8, 2, -1, 1, 3.0))
sketch4.addConstraint(Sketcher.Constraint("DistanceX", 12, 2, -1, 1, 12.0))
sketch4.setExpression("Constraints[41]", "Params.sketch4_width")
sketch4.setExpression("Constraints[42]", "Params.sketch4_height")
pad3 = body.newObject("PartDesign::Pad", "Pad002")
pad3.Profile = sketch4
pad3.setExpression("Length", "Params.pad3_length")
pad3.Reversed = True

# Sketch on XZ plane
sketch5 = body.newObject("Sketcher::SketchObject", "Sketch004")
sketch5.AttachmentSupport = (doc.getObject("XZ_Plane"), [""])
sketch5.MapMode = "FlatFace"
sketch5.AttachmentOffset = App.Placement(V(0, 0, -0.75), App.Rotation())
sketch5.addGeometry(Part.LineSegment(V(-17.5, 4.5, 0), V(-17.5, 9.5, 0)), False)
sketch5.addGeometry(Part.LineSegment(V(-17.5, 9.5, 0), V(-14.5, 9.5, 0)), False)
sketch5.addGeometry(Part.LineSegment(V(-14.5, 9.5, 0), V(-14.5, 4.5, 0)), False)
sketch5.addGeometry(Part.LineSegment(V(-14.5, 4.5, 0), V(-17.5, 4.5, 0)), False)
sketch5.addGeometry(Part.LineSegment(V(-8.5, 4.5, 0), V(-8.5, 9.5, 0)), False)
sketch5.addGeometry(Part.LineSegment(V(-8.5, 9.5, 0), V(-5.5, 9.5, 0)), False)
sketch5.addGeometry(Part.LineSegment(V(-5.5, 9.5, 0), V(-5.5, 4.5, 0)), False)
sketch5.addGeometry(Part.LineSegment(V(-5.5, 4.5, 0), V(-8.5, 4.5, 0)), False)
sketch5.addGeometry(Part.LineSegment(V(0.5, 4.5, 0), V(0.5, 9.5, 0)), False)
sketch5.addGeometry(Part.LineSegment(V(0.5, 9.5, 0), V(3.5, 9.5, 0)), False)
sketch5.addGeometry(Part.LineSegment(V(3.5, 9.5, 0), V(3.5, 4.5, 0)), False)
sketch5.addGeometry(Part.LineSegment(V(3.5, 4.5, 0), V(0.5, 4.5, 0)), False)
sketch5.addGeometry(Part.LineSegment(V(9.5, 4.5, 0), V(9.5, 9.5, 0)), False)
sketch5.addGeometry(Part.LineSegment(V(9.5, 9.5, 0), V(12.5, 9.5, 0)), False)
sketch5.addGeometry(Part.LineSegment(V(12.5, 9.5, 0), V(12.5, 4.5, 0)), False)
sketch5.addGeometry(Part.LineSegment(V(12.5, 4.5, 0), V(9.5, 4.5, 0)), False)
sketch5.addConstraint(Sketcher.Constraint("Coincident", 0, 2, 1, 1))
sketch5.addConstraint(Sketcher.Constraint("Coincident", 1, 2, 2, 1))
sketch5.addConstraint(Sketcher.Constraint("Coincident", 2, 2, 3, 1))
sketch5.addConstraint(Sketcher.Constraint("Coincident", 3, 2, 0, 1))
sketch5.addConstraint(Sketcher.Constraint("Coincident", 4, 2, 5, 1))
sketch5.addConstraint(Sketcher.Constraint("Coincident", 5, 2, 6, 1))
sketch5.addConstraint(Sketcher.Constraint("Coincident", 6, 2, 7, 1))
sketch5.addConstraint(Sketcher.Constraint("Coincident", 7, 2, 4, 1))
sketch5.addConstraint(Sketcher.Constraint("Coincident", 8, 2, 9, 1))
sketch5.addConstraint(Sketcher.Constraint("Coincident", 9, 2, 10, 1))
sketch5.addConstraint(Sketcher.Constraint("Coincident", 10, 2, 11, 1))
sketch5.addConstraint(Sketcher.Constraint("Coincident", 11, 2, 8, 1))
sketch5.addConstraint(Sketcher.Constraint("Coincident", 12, 2, 13, 1))
sketch5.addConstraint(Sketcher.Constraint("Coincident", 13, 2, 14, 1))
sketch5.addConstraint(Sketcher.Constraint("Coincident", 14, 2, 15, 1))
sketch5.addConstraint(Sketcher.Constraint("Coincident", 15, 2, 12, 1))
sketch5.addConstraint(Sketcher.Constraint("Vertical", 0))
sketch5.addConstraint(Sketcher.Constraint("Horizontal", 1))
sketch5.addConstraint(Sketcher.Constraint("Vertical", 2))
sketch5.addConstraint(Sketcher.Constraint("Horizontal", 3))
sketch5.addConstraint(Sketcher.Constraint("Vertical", 4))
sketch5.addConstraint(Sketcher.Constraint("Horizontal", 5))
sketch5.addConstraint(Sketcher.Constraint("Vertical", 6))
sketch5.addConstraint(Sketcher.Constraint("Horizontal", 7))
sketch5.addConstraint(Sketcher.Constraint("Vertical", 8))
sketch5.addConstraint(Sketcher.Constraint("Horizontal", 9))
sketch5.addConstraint(Sketcher.Constraint("Vertical", 10))
sketch5.addConstraint(Sketcher.Constraint("Horizontal", 11))
sketch5.addConstraint(Sketcher.Constraint("Vertical", 12))
sketch5.addConstraint(Sketcher.Constraint("Horizontal", 13))
sketch5.addConstraint(Sketcher.Constraint("Vertical", 14))
sketch5.addConstraint(Sketcher.Constraint("Horizontal", 15))
sketch5.addConstraint(Sketcher.Constraint("Horizontal", 1, 2, 4, 2))
sketch5.addConstraint(Sketcher.Constraint("Horizontal", 3, 2, 6, 2))
sketch5.addConstraint(Sketcher.Constraint("Horizontal", 5, 2, 8, 2))
sketch5.addConstraint(Sketcher.Constraint("Horizontal", 7, 2, 10, 2))
sketch5.addConstraint(Sketcher.Constraint("Horizontal", 9, 2, 12, 2))
sketch5.addConstraint(Sketcher.Constraint("Horizontal", 11, 2, 14, 2))
sketch5.addConstraint(Sketcher.Constraint("Equal", 3, 5))
sketch5.addConstraint(Sketcher.Constraint("Equal", 7, 9))
sketch5.addConstraint(Sketcher.Constraint("Equal", 11, 13))
sketch5.addConstraint(Sketcher.Constraint("DistanceX", 1, 1, 1, 2, 3.0))
sketch5.addConstraint(Sketcher.Constraint("DistanceY", 0, 1, 0, 2, 5.0))
sketch5.addConstraint(Sketcher.Constraint("DistanceX", 1, 2, 4, 2, 6.0))
sketch5.addConstraint(Sketcher.Constraint("DistanceX", 5, 2, 8, 2, 6.0))
sketch5.addConstraint(Sketcher.Constraint("DistanceX", 9, 2, 12, 2, 6.0))
sketch5.addConstraint(Sketcher.Constraint("DistanceX", 0, 2, -1, 1, 17.5))
sketch5.addConstraint(Sketcher.Constraint("DistanceY", -1, 1, 0, 2, 9.5))
sketch5.setExpression("Constraints[41]", "Params.sketch5_width")
sketch5.setExpression("Constraints[42]", "Params.sketch5_height")
pad4 = body.newObject("PartDesign::Pad", "Pad003")
pad4.Profile = sketch5
pad4.setExpression("Length", "Params.pad4_length")
pad4.Reversed = True

doc.recompute()
